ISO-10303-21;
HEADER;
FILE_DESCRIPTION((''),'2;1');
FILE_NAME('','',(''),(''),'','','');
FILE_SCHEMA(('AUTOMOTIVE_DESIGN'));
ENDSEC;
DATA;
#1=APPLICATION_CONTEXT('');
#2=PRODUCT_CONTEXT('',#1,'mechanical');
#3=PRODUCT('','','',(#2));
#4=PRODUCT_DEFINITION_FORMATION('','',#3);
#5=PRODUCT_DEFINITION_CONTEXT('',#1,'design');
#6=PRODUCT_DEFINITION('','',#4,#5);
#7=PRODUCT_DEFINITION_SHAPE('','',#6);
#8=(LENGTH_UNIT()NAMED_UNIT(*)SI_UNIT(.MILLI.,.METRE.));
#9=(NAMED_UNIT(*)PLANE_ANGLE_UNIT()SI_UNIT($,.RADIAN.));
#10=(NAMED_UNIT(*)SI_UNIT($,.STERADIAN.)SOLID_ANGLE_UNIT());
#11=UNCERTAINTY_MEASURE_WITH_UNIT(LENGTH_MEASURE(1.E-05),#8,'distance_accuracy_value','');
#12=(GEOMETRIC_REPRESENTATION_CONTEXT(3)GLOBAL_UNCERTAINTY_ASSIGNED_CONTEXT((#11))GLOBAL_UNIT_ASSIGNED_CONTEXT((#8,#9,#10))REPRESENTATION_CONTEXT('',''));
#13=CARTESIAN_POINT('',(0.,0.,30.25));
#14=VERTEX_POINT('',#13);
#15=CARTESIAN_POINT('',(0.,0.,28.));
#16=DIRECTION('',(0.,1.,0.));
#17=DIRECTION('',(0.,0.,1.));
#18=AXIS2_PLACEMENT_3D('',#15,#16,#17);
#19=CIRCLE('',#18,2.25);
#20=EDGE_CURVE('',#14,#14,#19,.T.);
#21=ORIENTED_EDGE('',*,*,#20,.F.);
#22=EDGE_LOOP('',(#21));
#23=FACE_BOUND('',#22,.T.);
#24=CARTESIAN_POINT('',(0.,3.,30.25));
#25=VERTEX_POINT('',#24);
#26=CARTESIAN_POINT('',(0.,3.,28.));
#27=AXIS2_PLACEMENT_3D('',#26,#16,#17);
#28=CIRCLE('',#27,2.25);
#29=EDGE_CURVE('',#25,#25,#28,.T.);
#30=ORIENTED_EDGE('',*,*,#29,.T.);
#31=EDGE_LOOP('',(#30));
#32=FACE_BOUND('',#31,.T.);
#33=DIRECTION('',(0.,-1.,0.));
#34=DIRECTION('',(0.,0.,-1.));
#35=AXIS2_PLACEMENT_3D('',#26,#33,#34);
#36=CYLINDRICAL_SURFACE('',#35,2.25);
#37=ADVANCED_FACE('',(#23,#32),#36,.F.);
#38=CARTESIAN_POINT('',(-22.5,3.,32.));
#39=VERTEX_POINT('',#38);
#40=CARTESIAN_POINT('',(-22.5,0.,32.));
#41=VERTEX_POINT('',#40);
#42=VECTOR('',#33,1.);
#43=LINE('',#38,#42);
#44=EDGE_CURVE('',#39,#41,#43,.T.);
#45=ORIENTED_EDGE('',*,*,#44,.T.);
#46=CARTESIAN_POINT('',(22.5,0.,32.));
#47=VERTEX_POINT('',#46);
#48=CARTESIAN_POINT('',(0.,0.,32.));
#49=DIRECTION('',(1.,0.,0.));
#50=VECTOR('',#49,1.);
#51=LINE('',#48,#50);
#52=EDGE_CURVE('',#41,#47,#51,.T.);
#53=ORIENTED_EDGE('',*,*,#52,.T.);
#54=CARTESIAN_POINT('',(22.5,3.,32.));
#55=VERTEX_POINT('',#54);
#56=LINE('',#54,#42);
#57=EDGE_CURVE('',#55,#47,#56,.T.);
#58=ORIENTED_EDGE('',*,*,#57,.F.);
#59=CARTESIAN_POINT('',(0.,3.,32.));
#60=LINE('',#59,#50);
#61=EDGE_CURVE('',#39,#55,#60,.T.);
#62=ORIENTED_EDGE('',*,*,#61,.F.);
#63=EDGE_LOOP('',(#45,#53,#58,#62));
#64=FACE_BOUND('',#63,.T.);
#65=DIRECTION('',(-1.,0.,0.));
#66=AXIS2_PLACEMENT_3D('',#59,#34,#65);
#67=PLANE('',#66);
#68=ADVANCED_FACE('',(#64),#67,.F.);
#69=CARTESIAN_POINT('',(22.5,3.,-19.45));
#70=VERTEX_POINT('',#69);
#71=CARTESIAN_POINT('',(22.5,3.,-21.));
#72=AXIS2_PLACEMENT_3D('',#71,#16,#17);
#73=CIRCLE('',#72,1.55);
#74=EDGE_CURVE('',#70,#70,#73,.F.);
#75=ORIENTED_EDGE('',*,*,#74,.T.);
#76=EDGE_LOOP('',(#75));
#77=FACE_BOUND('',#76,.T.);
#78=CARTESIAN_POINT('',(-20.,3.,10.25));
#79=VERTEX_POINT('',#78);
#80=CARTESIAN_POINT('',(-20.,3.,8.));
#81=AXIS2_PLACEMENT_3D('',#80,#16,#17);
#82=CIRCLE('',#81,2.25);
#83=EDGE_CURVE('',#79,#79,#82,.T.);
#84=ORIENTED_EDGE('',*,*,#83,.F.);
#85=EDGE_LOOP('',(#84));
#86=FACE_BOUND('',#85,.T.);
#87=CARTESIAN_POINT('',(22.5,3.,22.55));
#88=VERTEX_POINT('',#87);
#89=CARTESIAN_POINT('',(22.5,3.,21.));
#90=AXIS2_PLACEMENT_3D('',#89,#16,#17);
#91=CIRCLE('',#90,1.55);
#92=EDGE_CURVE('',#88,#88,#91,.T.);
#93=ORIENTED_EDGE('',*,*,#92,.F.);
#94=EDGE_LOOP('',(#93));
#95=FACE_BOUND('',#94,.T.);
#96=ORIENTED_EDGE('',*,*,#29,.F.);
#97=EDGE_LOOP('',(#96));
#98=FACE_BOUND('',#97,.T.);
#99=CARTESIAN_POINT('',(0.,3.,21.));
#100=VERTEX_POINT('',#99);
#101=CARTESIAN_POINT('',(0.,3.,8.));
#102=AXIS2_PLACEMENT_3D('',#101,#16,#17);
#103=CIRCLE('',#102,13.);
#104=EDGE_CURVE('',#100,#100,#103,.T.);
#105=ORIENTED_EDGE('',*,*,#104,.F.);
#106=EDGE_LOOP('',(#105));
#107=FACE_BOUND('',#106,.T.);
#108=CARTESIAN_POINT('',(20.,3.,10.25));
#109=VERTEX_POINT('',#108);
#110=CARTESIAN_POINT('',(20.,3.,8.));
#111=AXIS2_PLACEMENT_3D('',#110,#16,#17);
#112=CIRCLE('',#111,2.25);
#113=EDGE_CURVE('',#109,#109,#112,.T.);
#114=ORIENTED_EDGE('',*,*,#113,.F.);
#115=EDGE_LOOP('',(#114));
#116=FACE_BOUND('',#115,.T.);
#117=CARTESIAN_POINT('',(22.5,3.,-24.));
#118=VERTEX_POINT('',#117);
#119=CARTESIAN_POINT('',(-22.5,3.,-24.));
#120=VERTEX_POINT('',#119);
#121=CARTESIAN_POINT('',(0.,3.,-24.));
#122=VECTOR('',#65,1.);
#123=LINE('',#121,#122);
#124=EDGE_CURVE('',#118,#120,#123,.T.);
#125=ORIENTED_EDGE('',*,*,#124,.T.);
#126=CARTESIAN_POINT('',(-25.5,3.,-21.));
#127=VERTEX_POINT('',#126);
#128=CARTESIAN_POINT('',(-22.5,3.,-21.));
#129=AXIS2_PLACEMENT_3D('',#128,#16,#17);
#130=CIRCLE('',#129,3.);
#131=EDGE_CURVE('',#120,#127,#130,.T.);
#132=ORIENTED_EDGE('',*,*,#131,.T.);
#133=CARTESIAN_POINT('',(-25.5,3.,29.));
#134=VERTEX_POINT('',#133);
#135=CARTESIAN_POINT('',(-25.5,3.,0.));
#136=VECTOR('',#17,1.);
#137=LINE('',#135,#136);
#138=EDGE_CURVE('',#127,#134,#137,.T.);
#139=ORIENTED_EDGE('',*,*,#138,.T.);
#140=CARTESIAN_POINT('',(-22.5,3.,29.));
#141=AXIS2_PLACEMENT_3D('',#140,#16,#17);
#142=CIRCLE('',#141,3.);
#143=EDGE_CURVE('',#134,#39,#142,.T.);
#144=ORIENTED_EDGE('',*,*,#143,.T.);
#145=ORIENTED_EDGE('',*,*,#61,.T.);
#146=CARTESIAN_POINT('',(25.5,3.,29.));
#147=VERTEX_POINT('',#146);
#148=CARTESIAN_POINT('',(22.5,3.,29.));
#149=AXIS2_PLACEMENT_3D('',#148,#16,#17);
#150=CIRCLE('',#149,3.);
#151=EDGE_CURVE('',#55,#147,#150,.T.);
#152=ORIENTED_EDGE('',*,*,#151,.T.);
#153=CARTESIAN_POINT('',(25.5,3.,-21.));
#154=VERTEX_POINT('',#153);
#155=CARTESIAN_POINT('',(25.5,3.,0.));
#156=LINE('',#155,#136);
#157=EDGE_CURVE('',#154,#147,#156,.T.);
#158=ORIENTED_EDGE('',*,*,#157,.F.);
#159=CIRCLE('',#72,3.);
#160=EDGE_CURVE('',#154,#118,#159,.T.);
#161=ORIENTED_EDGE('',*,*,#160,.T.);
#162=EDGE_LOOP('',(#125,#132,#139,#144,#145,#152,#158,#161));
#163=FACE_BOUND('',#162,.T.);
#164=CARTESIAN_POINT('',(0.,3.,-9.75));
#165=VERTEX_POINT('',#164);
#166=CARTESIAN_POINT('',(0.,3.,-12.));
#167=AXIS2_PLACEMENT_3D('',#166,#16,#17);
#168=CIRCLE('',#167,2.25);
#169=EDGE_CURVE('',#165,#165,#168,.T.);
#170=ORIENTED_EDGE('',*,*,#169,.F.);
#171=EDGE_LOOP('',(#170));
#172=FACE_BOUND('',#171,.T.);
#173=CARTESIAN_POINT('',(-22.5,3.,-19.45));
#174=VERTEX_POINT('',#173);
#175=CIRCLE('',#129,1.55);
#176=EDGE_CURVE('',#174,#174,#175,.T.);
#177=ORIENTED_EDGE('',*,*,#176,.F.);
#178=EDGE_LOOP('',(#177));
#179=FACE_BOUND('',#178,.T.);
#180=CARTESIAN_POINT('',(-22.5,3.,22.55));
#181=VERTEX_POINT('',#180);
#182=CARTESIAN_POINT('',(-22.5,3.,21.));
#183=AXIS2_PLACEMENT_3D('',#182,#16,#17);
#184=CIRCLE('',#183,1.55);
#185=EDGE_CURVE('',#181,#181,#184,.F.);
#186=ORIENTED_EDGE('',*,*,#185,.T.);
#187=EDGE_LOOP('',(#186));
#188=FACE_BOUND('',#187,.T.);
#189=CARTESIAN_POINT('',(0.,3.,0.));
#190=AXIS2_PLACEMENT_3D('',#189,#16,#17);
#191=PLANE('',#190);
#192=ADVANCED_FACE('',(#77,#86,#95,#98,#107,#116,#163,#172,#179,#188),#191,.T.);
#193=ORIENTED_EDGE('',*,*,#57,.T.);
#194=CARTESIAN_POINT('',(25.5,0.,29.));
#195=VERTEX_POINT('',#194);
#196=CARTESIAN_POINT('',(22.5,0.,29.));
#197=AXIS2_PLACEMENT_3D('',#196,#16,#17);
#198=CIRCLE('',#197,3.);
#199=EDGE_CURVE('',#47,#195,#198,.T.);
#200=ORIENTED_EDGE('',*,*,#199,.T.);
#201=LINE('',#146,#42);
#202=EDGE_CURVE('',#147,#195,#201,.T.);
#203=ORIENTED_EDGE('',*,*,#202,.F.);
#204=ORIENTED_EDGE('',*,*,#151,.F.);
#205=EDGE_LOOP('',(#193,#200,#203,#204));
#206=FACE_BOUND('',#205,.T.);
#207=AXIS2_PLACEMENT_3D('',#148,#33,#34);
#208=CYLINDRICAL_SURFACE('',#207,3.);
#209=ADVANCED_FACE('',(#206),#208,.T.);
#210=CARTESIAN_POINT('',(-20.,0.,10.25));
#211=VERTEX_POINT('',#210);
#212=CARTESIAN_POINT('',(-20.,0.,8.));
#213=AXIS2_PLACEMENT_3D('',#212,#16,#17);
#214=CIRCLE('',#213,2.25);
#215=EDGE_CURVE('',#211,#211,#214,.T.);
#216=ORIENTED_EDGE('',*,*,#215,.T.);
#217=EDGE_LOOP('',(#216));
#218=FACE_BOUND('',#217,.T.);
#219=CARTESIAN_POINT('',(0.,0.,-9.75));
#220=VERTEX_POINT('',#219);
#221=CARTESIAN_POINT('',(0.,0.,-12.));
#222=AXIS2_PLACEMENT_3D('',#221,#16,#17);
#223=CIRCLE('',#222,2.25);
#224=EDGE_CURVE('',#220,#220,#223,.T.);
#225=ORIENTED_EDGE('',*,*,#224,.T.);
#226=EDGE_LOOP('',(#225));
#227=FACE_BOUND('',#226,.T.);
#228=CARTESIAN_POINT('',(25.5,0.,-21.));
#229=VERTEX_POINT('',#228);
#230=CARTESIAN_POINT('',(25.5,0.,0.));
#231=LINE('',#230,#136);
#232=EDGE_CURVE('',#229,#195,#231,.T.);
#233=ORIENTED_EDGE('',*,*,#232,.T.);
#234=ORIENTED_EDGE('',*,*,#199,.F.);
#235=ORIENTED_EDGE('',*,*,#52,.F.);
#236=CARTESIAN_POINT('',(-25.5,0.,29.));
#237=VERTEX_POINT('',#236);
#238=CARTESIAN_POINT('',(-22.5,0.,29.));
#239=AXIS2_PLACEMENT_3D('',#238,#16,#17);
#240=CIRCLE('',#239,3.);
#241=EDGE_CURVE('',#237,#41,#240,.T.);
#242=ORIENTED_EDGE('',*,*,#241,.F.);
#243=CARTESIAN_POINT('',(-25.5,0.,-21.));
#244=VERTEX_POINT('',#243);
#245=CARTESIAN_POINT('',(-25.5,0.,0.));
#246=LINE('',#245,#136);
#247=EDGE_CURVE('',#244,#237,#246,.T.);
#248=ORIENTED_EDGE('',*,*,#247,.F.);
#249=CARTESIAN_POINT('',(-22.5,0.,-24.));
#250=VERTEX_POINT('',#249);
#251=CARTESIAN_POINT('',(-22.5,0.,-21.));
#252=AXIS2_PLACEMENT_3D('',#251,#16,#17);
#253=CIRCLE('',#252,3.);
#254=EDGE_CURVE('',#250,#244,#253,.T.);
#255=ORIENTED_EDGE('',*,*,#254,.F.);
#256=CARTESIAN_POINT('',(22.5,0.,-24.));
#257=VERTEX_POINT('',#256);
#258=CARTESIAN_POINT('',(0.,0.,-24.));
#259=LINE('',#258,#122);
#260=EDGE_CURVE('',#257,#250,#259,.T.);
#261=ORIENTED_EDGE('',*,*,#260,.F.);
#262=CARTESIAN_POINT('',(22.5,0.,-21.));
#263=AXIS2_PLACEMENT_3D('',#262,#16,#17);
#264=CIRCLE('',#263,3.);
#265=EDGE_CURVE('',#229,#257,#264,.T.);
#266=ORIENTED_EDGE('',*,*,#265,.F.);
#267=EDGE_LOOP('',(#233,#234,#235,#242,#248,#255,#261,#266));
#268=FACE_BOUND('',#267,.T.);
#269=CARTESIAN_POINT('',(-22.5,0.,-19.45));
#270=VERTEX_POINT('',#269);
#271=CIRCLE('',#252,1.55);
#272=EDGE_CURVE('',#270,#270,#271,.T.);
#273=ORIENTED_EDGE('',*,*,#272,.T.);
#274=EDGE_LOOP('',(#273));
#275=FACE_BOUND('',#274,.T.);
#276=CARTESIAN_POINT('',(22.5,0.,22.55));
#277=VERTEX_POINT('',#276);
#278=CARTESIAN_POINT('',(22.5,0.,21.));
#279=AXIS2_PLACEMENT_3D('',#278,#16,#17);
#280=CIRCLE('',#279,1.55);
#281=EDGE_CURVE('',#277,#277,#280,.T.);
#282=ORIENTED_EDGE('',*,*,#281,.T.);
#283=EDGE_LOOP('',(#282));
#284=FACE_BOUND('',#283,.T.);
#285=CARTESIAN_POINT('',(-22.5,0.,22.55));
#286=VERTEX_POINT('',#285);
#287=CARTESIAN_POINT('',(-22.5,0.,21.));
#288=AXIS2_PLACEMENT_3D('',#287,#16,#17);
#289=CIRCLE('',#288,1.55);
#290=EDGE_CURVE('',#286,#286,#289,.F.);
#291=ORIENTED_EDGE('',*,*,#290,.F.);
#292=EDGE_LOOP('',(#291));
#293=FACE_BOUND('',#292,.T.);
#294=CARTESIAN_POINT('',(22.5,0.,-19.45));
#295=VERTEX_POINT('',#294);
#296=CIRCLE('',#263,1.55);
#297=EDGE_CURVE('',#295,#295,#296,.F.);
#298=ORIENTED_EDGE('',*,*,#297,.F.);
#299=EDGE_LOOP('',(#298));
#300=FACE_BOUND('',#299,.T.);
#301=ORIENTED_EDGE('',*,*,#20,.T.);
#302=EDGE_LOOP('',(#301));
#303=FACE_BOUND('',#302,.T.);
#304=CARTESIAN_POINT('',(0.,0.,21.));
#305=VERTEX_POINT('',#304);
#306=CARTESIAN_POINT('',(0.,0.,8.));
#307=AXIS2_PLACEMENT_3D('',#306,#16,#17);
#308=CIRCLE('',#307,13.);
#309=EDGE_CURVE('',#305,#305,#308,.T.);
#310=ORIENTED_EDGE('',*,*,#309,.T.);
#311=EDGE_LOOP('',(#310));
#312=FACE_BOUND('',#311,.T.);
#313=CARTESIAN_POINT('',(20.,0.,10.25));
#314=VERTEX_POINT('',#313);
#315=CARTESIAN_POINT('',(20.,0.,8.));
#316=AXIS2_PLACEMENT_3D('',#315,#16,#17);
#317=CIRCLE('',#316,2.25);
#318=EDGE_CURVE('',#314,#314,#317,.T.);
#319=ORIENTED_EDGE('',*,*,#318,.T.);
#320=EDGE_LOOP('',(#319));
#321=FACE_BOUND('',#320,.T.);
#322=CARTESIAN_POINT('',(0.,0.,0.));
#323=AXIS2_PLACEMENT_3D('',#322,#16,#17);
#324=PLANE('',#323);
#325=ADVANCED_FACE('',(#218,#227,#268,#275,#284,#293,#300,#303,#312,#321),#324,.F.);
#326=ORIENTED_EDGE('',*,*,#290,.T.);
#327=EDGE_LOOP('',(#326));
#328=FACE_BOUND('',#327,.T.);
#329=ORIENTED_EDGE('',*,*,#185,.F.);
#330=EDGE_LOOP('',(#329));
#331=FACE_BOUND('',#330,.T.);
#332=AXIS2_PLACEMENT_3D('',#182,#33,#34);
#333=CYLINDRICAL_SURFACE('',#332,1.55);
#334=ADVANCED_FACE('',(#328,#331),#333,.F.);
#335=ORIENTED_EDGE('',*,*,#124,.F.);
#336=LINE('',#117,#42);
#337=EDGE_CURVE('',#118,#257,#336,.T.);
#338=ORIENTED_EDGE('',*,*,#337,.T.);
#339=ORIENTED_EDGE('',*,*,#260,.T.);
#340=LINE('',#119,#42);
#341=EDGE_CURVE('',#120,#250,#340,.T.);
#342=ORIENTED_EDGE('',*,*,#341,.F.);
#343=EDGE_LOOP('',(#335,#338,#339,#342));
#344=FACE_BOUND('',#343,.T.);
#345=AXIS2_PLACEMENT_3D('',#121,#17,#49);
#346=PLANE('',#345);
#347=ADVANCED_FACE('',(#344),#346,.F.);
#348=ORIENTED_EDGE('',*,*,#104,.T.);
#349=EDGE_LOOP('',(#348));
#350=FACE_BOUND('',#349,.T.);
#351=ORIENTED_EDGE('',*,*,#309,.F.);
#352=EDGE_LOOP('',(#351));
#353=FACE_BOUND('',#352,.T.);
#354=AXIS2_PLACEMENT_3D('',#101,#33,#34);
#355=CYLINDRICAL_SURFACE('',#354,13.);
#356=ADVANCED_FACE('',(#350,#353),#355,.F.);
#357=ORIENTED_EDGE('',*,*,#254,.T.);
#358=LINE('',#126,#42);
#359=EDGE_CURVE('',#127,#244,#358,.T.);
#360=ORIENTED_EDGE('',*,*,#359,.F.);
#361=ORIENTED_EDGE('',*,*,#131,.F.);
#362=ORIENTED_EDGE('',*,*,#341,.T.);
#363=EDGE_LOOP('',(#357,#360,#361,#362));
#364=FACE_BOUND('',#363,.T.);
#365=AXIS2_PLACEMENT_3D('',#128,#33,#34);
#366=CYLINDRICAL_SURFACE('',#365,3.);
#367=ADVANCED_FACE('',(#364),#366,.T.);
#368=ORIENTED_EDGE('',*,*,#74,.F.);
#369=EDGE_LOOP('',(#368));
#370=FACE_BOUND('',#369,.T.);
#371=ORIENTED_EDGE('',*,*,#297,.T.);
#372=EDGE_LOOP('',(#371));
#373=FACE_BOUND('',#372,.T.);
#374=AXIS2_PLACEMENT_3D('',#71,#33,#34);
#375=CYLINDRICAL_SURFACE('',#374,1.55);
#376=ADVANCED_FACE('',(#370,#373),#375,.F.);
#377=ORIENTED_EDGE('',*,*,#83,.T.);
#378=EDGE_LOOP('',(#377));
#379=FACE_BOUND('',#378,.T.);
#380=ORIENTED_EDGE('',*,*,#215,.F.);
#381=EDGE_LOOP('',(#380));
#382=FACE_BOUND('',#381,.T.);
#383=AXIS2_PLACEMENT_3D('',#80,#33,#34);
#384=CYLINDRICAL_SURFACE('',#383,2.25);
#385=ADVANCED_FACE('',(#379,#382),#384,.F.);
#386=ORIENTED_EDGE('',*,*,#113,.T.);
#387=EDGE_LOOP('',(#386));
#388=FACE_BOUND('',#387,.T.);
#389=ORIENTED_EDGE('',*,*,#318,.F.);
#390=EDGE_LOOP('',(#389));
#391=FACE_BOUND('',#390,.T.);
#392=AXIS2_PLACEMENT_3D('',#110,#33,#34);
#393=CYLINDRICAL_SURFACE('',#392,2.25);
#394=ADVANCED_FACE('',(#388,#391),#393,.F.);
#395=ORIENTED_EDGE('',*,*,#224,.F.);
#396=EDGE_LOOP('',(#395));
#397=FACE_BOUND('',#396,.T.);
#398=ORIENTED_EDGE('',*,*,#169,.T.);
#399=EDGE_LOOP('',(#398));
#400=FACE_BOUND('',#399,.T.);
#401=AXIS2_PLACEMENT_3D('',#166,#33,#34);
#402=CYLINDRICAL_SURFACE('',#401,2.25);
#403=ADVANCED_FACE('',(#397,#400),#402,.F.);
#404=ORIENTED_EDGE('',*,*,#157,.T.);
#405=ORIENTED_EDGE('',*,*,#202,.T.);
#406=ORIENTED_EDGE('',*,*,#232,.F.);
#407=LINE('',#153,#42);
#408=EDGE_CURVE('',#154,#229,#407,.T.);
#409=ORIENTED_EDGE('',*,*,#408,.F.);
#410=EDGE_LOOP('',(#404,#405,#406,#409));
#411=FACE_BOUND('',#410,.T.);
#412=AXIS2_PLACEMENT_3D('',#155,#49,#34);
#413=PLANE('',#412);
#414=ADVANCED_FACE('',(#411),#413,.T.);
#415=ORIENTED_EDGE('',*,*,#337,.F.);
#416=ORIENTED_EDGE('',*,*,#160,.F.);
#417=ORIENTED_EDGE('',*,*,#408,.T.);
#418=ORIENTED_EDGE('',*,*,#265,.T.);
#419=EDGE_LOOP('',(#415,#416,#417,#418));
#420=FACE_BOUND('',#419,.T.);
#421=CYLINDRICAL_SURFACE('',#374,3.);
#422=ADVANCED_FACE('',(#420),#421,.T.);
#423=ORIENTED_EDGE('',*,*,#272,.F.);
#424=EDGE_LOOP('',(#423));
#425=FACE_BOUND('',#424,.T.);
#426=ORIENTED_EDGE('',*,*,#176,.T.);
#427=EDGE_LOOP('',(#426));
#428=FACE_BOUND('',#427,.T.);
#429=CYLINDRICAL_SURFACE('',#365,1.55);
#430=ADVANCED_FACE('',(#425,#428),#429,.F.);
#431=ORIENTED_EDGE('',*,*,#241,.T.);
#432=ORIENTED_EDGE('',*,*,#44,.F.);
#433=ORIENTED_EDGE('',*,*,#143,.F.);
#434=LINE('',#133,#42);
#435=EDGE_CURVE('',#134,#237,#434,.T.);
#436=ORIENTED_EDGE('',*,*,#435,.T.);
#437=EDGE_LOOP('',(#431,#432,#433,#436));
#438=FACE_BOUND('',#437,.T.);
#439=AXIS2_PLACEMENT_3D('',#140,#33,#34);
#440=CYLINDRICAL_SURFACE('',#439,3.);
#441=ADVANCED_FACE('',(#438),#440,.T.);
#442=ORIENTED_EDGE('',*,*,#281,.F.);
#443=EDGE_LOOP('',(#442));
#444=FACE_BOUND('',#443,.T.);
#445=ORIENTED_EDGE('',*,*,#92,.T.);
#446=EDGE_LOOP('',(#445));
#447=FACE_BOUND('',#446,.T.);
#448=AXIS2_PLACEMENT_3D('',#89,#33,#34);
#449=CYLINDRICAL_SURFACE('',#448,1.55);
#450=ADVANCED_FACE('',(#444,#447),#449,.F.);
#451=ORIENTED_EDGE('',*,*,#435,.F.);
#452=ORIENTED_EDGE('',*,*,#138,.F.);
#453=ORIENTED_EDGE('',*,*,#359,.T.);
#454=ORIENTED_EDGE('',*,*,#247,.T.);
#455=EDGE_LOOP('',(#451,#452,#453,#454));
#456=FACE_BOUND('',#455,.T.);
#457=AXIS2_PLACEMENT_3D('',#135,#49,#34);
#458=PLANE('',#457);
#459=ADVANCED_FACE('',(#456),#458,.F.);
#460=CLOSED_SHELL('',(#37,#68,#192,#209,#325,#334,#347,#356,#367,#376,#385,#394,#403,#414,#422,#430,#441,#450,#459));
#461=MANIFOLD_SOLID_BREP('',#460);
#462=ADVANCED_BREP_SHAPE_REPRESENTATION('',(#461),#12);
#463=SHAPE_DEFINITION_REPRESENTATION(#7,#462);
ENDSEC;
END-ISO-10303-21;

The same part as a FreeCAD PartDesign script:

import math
import FreeCAD as App
import Part
import Sketcher
from FreeCAD import Vector
Q = App.Units.Quantity

doc = App.newDocument("Part")
body = doc.addObject("PartDesign::Body", "Body")

# Sketch on XZ plane
sketch1 = body.newObject("Sketcher::SketchObject", "Sketch")
sketch1.AttachmentSupport = (doc.getObject("XZ_Plane"), [""])
sketch1.MapMode = "FlatFace"
sketch1.addGeometry(Part.LineSegment(Vector(25.5, 29, 0), Vector(25.5, -21, 0)), False)
sketch1.addGeometry(Part.ArcOfCircle(Part.Circle(Vector(22.5, -21, 0), Vector(0, 0, 1), 3), math.radians(-90), math.radians(0)), False)
sketch1.addGeometry(Part.LineSegment(Vector(22.5, -24, 0), Vector(-22.5, -24, 0)), False)
sketch1.addGeometry(Part.ArcOfCircle(Part.Circle(Vector(-22.5, -21, 0), Vector(0, 0, 1), 3), math.radians(180), math.radians(270)), False)
sketch1.addGeometry(Part.LineSegment(Vector(-25.5, -21, 0), Vector(-25.5, 29, 0)), False)
sketch1.addGeometry(Part.ArcOfCircle(Part.Circle(Vector(-22.5, 29, 0), Vector(0, 0, 1), 3), math.radians(90), math.radians(180)), False)
sketch1.addGeometry(Part.LineSegment(Vector(-22.5, 32, 0), Vector(22.5, 32, 0)), False)
sketch1.addGeometry(Part.ArcOfCircle(Part.Circle(Vector(22.5, 29, 0), Vector(0, 0, 1), 3), math.radians(0), math.radians(90)), False)
sketch1.addGeometry(Part.Circle(Vector(-22.5, 21, 0), Vector(0, 0, 1), 1.55), False)
sketch1.addGeometry(Part.Circle(Vector(0, 28, 0), Vector(0, 0, 1), 2.25), False)
sketch1.addGeometry(Part.Circle(Vector(-20, 8, 0), Vector(0, 0, 1), 2.25), False)
sketch1.addGeometry(Part.Circle(Vector(0, 8, 0), Vector(0, 0, 1), 13), False)
sketch1.addGeometry(Part.Circle(Vector(22.5, 21, 0), Vector(0, 0, 1), 1.55), False)
sketch1.addGeometry(Part.Circle(Vector(20, 8, 0), Vector(0, 0, 1), 2.25), False)
sketch1.addGeometry(Part.Circle(Vector(-22.5, -21, 0), Vector(0, 0, 1), 1.55), False)
sketch1.addGeometry(Part.Circle(Vector(0, -12, 0), Vector(0, 0, 1), 2.25), False)
sketch1.addGeometry(Part.Circle(Vector(22.5, -21, 0), Vector(0, 0, 1), 1.55), False)
sketch1.addConstraint(Sketcher.Constraint("Tangent", 0, 2, 1, 2))
sketch1.addConstraint(Sketcher.Constraint("Tangent", 1, 1, 2, 1))
sketch1.addConstraint(Sketcher.Constraint("Tangent", 2, 2, 3, 2))
sketch1.addConstraint(Sketcher.Constraint("Tangent", 3, 1, 4, 1))
sketch1.addConstraint(Sketcher.Constraint("Tangent", 4, 2, 5, 2))
sketch1.addConstraint(Sketcher.Constraint("Tangent", 5, 1, 6, 1))
sketch1.addConstraint(Sketcher.Constraint("Tangent", 6, 2, 7, 2))
sketch1.addConstraint(Sketcher.Constraint("Tangent", 7, 1, 0, 1))
sketch1.addConstraint(Sketcher.Constraint("Vertical", 0))
sketch1.addConstraint(Sketcher.Constraint("Horizontal", 2))
sketch1.addConstraint(Sketcher.Constraint("Vertical", 4))
sketch1.addConstraint(Sketcher.Constraint("Horizontal", 6))
sketch1.addConstraint(Sketcher.Constraint("Coincident", 14, 3, 3, 3))
sketch1.addConstraint(Sketcher.Constraint("Coincident", 16, 3, 1, 3))
sketch1.addConstraint(Sketcher.Constraint("Equal", 1, 3))
sketch1.addConstraint(Sketcher.Constraint("Equal", 3, 5))
sketch1.addConstraint(Sketcher.Constraint("Equal", 5, 7))
sketch1.addConstraint(Sketcher.Constraint("Equal", 9, 10))
sketch1.addConstraint(Sketcher.Constraint("Equal", 8, 12))
sketch1.addConstraint(Sketcher.Constraint("Equal", 10, 13))
sketch1.addConstraint(Sketcher.Constraint("Equal", 12, 14))
sketch1.addConstraint(Sketcher.Constraint("Equal", 13, 15))
sketch1.addConstraint(Sketcher.Constraint("Equal", 14, 16))
sketch1.addConstraint(Sketcher.Constraint("Symmetric", 1, 3, 8, 3, -1, 1))
sketch1.addConstraint(Sketcher.Constraint("Symmetric", 3, 3, 12, 3, -1, 1))
sketch1.addConstraint(Sketcher.Constraint("Symmetric", 10, 3, 13, 3, -2))
sketch1.addConstraint(Sketcher.Constraint("PointOnObject", 9, 3, -2))
sketch1.addConstraint(Sketcher.Constraint("PointOnObject", 11, 3, -2))
sketch1.addConstraint(Sketcher.Constraint("PointOnObject", 15, 3, -2))
sketch1.addConstraint(Sketcher.Constraint("Horizontal", 10, 3, 11, 3))
sketch1.addConstraint(Sketcher.Constraint("Vertical", 5, 3, 8, 3))
sketch1.addConstraint(Sketcher.Constraint("Diameter", 11, Q("26 mm")))
sketch1.addConstraint(Sketcher.Constraint("Radius", 1, Q("3 mm")))
sketch1.addConstraint(Sketcher.Constraint("Diameter", 8, Q("3.1 mm")))
sketch1.addConstraint(Sketcher.Constraint("Diameter", 9, Q("4.5 mm")))
sketch1.addConstraint(Sketcher.Constraint("DistanceX", 2, 2, 2, 1, Q("45 mm")))
sketch1.addConstraint(Sketcher.Constraint("DistanceY", 0, 2, 0, 1, Q("50 mm")))
sketch1.addConstraint(Sketcher.Constraint("DistanceY", 1, 3, -1, 1, Q("21 mm")))
sketch1.addConstraint(Sketcher.Constraint("DistanceY", -1, 1, 9, 3, Q("28 mm")))
sketch1.addConstraint(Sketcher.Constraint("DistanceX", 10, 3, -1, 1, Q("20 mm")))
sketch1.addConstraint(Sketcher.Constraint("DistanceY", -1, 1, 10, 3, Q("8 mm")))
sketch1.addConstraint(Sketcher.Constraint("DistanceY", 15, 3, -1, 1, Q("12 mm")))
pad1 = body.newObject("PartDesign::Pad", "Pad")
pad1.Profile = sketch1
pad1.Length = 3
pad1.Reversed = True

doc.recompute()
